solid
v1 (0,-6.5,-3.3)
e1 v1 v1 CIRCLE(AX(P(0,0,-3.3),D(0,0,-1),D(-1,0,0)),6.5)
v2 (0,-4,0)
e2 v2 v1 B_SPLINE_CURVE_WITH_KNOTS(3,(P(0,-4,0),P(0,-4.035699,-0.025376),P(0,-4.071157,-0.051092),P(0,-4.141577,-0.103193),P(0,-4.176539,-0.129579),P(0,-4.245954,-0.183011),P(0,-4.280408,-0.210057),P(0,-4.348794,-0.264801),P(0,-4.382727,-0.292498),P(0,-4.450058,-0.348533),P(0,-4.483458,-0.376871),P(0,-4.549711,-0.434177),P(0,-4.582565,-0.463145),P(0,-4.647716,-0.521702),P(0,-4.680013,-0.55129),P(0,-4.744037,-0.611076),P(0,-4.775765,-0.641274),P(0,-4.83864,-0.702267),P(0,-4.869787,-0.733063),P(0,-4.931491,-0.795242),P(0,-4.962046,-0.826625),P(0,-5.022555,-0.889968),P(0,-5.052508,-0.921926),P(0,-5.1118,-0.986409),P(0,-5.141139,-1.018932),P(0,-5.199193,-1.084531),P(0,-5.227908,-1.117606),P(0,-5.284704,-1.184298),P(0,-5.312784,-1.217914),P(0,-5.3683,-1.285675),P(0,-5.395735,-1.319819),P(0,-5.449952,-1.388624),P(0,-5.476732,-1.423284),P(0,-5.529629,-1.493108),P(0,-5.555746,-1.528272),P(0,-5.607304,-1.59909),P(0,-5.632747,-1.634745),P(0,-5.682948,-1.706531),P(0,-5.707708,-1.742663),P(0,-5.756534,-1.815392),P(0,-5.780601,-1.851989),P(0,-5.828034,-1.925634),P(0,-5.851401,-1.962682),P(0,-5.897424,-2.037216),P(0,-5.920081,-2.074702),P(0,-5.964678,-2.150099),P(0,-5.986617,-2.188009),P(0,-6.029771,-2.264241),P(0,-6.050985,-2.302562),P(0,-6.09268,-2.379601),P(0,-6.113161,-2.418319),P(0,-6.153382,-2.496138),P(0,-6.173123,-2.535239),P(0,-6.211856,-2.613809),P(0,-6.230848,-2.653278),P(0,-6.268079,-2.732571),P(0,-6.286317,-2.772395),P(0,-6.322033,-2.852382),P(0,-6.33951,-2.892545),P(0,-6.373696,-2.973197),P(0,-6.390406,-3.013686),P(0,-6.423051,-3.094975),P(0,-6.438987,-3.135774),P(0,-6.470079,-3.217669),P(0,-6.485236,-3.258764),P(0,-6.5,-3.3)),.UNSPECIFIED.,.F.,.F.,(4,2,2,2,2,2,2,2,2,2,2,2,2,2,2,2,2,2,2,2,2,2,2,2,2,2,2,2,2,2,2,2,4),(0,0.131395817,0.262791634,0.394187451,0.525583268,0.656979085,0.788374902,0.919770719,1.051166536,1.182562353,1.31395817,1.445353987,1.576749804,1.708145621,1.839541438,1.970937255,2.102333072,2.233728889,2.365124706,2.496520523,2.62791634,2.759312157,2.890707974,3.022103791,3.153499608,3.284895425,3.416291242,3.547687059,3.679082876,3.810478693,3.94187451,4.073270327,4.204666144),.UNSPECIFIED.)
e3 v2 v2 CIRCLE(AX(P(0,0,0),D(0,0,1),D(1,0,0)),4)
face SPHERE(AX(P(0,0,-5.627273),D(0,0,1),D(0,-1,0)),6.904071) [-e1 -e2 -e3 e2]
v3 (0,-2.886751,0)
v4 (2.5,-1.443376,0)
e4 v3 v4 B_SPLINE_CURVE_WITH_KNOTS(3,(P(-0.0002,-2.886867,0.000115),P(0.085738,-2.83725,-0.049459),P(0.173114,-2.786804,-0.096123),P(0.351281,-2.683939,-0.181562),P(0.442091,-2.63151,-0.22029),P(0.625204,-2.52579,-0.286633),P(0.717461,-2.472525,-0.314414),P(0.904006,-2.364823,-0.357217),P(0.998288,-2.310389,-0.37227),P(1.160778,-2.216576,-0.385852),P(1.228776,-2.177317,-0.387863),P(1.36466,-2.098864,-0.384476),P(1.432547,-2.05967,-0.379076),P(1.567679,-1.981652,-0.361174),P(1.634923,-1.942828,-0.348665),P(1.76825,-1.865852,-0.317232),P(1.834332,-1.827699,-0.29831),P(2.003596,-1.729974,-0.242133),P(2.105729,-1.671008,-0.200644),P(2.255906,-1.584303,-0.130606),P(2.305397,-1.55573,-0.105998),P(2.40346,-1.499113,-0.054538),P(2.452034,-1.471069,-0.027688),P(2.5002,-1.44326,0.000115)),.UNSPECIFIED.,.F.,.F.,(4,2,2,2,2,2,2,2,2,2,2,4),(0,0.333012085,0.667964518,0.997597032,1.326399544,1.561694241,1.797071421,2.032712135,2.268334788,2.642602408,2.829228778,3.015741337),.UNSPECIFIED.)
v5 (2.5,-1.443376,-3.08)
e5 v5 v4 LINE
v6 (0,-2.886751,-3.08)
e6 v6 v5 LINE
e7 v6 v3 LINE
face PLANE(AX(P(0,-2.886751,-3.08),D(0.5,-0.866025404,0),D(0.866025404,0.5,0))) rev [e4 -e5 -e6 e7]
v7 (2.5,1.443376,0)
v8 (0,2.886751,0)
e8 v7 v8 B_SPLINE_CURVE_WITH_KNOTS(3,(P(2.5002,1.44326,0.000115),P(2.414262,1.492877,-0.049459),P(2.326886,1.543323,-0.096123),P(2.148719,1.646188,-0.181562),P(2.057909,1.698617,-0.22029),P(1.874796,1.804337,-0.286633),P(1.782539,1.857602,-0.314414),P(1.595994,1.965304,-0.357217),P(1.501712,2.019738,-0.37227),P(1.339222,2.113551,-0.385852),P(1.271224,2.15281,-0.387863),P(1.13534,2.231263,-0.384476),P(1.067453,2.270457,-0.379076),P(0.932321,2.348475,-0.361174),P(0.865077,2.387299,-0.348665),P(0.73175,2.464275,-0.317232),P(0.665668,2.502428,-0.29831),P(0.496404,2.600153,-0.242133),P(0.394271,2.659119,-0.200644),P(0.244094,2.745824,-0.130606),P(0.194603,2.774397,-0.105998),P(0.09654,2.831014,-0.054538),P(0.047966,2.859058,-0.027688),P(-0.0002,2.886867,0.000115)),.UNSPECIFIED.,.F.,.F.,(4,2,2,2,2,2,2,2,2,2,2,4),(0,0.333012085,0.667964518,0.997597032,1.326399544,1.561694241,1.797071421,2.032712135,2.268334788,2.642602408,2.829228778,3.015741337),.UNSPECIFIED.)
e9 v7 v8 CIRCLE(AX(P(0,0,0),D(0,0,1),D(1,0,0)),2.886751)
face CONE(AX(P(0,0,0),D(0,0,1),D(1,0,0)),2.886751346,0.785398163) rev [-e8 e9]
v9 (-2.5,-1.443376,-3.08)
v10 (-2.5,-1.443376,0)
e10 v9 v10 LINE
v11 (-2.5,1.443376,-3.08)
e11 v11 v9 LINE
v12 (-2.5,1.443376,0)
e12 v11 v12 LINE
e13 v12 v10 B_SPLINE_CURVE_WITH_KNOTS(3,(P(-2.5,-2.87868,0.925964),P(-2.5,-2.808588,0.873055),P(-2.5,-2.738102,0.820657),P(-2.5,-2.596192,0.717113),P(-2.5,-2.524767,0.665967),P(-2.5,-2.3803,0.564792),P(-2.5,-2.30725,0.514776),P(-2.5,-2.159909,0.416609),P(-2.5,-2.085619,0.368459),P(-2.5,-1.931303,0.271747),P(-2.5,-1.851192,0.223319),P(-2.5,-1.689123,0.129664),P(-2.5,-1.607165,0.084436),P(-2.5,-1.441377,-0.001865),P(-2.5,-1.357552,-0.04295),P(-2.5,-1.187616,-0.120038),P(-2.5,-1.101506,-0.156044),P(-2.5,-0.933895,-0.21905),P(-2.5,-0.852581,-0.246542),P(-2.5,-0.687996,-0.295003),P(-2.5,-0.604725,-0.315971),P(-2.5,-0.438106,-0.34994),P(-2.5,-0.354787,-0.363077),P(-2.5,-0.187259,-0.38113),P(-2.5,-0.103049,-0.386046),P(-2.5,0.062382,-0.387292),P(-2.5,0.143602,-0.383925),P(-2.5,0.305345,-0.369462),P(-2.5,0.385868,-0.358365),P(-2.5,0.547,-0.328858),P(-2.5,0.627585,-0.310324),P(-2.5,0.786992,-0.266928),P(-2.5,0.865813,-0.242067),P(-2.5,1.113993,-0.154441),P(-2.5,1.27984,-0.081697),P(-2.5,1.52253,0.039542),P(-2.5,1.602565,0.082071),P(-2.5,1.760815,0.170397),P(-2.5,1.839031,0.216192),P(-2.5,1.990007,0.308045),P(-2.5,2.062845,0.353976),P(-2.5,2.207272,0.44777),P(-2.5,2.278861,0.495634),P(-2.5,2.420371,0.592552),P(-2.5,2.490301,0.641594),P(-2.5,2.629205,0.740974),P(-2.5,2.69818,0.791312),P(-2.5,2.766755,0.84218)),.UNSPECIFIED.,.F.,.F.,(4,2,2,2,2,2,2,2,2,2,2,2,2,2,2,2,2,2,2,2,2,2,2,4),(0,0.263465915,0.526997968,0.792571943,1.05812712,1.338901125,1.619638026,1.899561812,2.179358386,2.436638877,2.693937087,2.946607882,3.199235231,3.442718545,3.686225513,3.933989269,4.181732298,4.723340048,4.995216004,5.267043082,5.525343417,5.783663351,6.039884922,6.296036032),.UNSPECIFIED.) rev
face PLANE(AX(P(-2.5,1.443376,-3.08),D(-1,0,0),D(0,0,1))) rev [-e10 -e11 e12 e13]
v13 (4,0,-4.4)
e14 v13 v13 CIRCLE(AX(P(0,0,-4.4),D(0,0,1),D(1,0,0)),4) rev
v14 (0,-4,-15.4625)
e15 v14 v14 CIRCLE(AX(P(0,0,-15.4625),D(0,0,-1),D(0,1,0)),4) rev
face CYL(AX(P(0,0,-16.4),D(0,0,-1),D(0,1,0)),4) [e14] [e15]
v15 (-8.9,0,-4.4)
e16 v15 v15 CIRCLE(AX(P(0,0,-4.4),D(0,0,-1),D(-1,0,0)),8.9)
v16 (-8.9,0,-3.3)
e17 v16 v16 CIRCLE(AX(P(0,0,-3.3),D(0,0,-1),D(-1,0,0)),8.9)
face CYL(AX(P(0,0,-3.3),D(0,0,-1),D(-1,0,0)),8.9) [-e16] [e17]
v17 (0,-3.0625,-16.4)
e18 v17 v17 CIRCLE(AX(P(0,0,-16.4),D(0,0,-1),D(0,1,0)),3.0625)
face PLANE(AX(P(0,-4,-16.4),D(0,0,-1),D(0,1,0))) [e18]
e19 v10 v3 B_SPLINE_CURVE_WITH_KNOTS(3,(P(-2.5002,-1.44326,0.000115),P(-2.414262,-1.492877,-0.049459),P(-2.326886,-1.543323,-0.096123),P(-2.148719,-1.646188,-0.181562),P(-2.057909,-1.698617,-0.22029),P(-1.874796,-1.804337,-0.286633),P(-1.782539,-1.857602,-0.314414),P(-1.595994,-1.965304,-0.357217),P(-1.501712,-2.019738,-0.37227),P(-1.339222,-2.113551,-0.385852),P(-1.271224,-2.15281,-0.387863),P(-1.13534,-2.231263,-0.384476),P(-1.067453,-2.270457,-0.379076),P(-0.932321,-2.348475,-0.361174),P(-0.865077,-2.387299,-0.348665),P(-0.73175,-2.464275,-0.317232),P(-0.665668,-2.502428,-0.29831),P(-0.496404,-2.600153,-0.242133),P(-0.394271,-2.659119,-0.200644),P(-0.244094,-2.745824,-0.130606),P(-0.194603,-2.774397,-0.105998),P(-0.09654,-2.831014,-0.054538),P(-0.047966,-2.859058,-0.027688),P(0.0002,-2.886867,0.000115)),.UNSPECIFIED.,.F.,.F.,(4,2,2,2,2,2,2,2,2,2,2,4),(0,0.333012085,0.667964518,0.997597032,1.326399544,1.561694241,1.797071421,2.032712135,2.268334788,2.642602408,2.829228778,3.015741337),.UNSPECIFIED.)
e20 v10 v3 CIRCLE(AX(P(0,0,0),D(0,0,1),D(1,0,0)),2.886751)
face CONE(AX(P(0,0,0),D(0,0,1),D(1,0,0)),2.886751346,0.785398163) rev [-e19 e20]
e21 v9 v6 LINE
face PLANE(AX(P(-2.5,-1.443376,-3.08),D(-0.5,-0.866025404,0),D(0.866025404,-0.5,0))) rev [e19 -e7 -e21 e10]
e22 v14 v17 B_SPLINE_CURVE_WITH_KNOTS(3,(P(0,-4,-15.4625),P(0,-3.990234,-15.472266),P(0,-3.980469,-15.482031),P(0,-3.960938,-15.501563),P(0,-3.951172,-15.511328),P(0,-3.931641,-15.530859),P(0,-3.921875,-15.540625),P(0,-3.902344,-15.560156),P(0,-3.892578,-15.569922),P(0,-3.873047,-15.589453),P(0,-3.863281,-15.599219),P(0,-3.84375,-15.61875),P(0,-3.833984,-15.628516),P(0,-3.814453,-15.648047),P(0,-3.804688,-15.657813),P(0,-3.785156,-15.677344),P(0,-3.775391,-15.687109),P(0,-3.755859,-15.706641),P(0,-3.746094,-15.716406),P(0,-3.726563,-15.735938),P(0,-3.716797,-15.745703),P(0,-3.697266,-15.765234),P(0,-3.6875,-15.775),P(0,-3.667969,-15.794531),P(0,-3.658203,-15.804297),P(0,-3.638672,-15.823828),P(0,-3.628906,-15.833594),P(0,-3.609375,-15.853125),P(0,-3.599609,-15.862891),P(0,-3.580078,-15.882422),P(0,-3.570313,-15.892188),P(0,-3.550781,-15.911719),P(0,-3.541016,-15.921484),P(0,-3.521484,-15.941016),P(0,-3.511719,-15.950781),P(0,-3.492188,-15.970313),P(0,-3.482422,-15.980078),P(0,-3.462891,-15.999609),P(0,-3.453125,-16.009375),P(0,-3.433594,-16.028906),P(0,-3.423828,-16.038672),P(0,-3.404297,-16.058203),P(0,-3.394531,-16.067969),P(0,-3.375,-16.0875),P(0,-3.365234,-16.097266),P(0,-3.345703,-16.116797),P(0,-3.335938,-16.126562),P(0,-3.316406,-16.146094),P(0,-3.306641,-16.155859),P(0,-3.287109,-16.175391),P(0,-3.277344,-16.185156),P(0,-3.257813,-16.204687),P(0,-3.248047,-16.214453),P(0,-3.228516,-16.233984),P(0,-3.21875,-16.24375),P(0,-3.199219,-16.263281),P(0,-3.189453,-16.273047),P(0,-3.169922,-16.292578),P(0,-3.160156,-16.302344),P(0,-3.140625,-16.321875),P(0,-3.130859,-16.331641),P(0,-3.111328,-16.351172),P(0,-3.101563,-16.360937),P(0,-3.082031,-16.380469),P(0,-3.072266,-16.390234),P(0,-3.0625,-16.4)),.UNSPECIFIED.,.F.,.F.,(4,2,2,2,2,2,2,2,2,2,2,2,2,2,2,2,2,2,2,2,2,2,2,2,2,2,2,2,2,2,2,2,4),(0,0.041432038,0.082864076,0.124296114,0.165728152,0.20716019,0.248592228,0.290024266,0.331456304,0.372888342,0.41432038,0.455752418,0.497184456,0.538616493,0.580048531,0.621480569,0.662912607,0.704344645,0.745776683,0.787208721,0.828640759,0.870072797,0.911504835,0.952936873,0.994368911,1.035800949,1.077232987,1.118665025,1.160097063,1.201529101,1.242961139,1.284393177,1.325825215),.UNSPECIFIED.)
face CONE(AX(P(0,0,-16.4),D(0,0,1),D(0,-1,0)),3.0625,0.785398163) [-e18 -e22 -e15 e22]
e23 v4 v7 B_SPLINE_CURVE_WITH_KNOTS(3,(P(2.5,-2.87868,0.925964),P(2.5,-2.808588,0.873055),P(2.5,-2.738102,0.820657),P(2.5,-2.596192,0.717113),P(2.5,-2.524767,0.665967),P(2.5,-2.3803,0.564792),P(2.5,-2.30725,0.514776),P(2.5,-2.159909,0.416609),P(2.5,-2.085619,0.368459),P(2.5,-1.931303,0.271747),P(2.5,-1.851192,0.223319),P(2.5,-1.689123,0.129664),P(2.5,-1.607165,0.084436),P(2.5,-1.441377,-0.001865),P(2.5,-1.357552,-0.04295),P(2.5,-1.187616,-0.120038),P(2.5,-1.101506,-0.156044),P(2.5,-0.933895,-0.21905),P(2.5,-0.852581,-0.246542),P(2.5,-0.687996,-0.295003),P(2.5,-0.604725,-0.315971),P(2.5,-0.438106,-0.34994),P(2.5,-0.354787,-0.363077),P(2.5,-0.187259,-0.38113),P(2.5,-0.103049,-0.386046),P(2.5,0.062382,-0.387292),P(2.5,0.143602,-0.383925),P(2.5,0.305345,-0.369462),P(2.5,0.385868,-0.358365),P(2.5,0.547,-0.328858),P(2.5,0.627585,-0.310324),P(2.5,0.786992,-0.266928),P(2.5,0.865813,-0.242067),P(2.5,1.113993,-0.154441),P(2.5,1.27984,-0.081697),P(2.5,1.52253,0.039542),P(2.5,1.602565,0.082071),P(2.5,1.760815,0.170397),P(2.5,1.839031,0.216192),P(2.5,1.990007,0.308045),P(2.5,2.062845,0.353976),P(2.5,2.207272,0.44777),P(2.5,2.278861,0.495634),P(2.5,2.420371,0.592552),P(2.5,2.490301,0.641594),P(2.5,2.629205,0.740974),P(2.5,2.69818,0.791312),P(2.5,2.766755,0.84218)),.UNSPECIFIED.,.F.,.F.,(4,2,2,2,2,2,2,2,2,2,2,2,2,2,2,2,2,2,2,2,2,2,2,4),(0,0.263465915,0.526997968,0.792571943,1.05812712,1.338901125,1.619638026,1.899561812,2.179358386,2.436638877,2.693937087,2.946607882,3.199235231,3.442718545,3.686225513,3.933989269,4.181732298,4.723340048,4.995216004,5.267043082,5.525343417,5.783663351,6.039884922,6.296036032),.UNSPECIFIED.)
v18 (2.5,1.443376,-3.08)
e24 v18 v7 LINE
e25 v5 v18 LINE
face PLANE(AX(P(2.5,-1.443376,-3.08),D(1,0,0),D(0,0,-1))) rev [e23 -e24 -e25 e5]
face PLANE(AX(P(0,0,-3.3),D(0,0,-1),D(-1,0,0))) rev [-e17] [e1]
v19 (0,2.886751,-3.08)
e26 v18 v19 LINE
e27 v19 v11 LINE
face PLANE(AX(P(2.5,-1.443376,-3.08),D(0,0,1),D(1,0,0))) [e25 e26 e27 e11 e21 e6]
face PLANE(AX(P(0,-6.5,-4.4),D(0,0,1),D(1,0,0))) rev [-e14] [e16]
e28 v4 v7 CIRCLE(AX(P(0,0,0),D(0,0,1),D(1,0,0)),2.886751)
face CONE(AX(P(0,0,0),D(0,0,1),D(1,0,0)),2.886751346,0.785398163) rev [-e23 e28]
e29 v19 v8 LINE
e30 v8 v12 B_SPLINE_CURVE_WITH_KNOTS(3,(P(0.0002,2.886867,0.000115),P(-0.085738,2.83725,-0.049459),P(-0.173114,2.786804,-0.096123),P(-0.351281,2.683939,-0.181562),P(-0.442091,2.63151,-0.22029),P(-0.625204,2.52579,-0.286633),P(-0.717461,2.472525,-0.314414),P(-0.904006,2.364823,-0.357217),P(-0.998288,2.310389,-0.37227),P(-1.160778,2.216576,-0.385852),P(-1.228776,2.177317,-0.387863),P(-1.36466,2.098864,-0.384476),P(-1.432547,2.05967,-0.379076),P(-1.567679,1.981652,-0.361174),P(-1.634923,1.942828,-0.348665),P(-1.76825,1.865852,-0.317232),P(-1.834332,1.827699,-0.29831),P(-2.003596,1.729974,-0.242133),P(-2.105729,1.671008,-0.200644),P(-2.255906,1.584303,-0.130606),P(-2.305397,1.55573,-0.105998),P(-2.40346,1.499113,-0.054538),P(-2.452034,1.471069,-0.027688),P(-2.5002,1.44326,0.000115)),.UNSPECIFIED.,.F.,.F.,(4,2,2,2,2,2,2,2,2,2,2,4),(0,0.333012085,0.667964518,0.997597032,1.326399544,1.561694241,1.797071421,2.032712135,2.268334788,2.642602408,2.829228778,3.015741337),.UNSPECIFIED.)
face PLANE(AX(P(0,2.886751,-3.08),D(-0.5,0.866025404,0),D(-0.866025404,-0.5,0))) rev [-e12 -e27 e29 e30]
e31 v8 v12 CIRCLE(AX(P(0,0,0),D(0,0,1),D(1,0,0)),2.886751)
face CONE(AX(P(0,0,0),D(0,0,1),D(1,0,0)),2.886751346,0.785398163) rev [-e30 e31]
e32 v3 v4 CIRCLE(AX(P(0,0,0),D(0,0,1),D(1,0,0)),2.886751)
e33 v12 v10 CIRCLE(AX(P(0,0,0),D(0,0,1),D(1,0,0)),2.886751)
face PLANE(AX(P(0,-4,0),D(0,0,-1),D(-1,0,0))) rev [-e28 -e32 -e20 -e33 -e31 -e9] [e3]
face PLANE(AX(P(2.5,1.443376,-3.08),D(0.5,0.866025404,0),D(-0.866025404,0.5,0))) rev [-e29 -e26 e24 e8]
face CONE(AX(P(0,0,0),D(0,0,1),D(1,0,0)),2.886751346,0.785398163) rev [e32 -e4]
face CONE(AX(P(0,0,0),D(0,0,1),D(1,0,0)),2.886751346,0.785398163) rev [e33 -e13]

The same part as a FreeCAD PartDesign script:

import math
import FreeCAD as App
import Part
import Sketcher

V = App.Vector
Q = App.Units.Quantity


def edges_at(feature, points):
    """Names of the edges that pass closest to the given points."""
    edges = feature.Shape.Edges
    near = lambda p: min(range(len(edges)), key=lambda i: edges[i].distToShape(Part.Vertex(*p))[0])
    return sorted({f"Edge{near(p) + 1}" for p in points})

doc = App.newDocument("Part")
body = doc.addObject("PartDesign::Body", "Body")

# Sketch on YZ plane
sketch1 = body.newObject("Sketcher::SketchObject", "Sketch")
sketch1.AttachmentSupport = (doc.getObject("YZ_Plane"), [""])
sketch1.MapMode = "FlatFace"
sketch1.addGeometry([
    Part.LineSegment(V(4, -4.4, 0), V(0, -4.4, 0)),
    Part.LineSegment(V(0, -4.4, 0), V(0, -16.4, 0)),
    Part.LineSegment(V(0, -16.4, 0), V(4, -16.4, 0)),
    Part.LineSegment(V(4, -16.4, 0), V(4, -4.4, 0)),
], False)
sketch1.addConstraint([
    Sketcher.Constraint("Coincident", 0, 2, 1, 1),
    Sketcher.Constraint("Coincident", 1, 2, 2, 1),
    Sketcher.Constraint("Coincident", 2, 2, 3, 1),
    Sketcher.Constraint("Coincident", 3, 2, 0, 1),
    Sketcher.Constraint("Horizontal", 0),
    Sketcher.Constraint("Vertical", 1),
    Sketcher.Constraint("Horizontal", 2),
    Sketcher.Constraint("Vertical", 3),
    Sketcher.Constraint("PointOnObject", 0, 2, -2),
    Sketcher.Constraint("DistanceX", 0, 2, 0, 1, Q("4 mm")),
    Sketcher.Constraint("DistanceY", 1, 2, 1, 1, Q("12 mm")),
    Sketcher.Constraint("DistanceY", 0, 2, -1, 1, Q("4.4 mm")),
])
revolution = body.newObject("PartDesign::Revolution", "Revolution")
revolution.Profile = sketch1
revolution.ReferenceAxis = (sketch1, ["V_Axis"])
revolution.Angle = 360
doc.recompute()

chamfer = body.newObject("PartDesign::Chamfer", "Chamfer")
chamfer.Base = (revolution, edges_at(revolution, [(0, -4, -16.4)]))
chamfer.Size = 0.9375

# Sketch on YZ plane
sketch2 = body.newObject("Sketcher::SketchObject", "Sketch001")
sketch2.AttachmentSupport = (doc.getObject("YZ_Plane"), [""])
sketch2.MapMode = "FlatFace"
sketch2.addGeometry([
    Part.LineSegment(V(6.5, -4.4, 0), V(6.5, -3.3, 0)),  # 0
    Part.ArcOfCircle(Part.Circle(V(0, -5.6, 0), V(0, 0, 1), 6.9), math.radians(20), math.radians(55)),  # 1
    Part.LineSegment(V(4, 0, 0), V(0, 0, 0)),  # 2
    Part.LineSegment(V(0, 0, 0), V(0, -4.4, 0)),  # 3
    Part.LineSegment(V(0, -4.4, 0), V(6.5, -4.4, 0)),  # 4
], False)
sketch2.addConstraint([
    Sketcher.Constraint("Coincident", 0, 2, 1, 1),
    Sketcher.Constraint("Coincident", 1, 2, 2, 1),
    Sketcher.Constraint("Coincident", 2, 2, 3, 1),
    Sketcher.Constraint("Coincident", 3, 2, 4, 1),
    Sketcher.Constraint("Coincident", 4, 2, 0, 1),
    Sketcher.Constraint("Vertical", 0),
    Sketcher.Constraint("Horizontal", 2),
    Sketcher.Constraint("Vertical", 3),
    Sketcher.Constraint("Horizontal", 4),
    Sketcher.Constraint("Coincident", 2, 2, -1, 1),
    Sketcher.Constraint("PointOnObject", 1, 3, -2),
    Sketcher.Constraint("DistanceX", 2, 2, 2, 1, Q("4 mm")),
    Sketcher.Constraint("DistanceX", 4, 1, 4, 2, Q("6.5 mm")),
    Sketcher.Constraint("DistanceY", 0, 1, 0, 2, Q("1.1 mm")),
    Sketcher.Constraint("DistanceY", 3, 2, 3, 1, Q("4.4 mm")),
])
revolution2 = body.newObject("PartDesign::Revolution", "Revolution001")
revolution2.Profile = sketch2
revolution2.ReferenceAxis = (sketch2, ["V_Axis"])
revolution2.Angle = 360

# Sketch on XY plane
sketch3 = body.newObject("Sketcher::SketchObject", "Sketch002")
sketch3.AttachmentSupport = (doc.getObject("XY_Plane"), [""])
sketch3.MapMode = "FlatFace"
sketch3.AttachmentOffset = App.Placement(V(0, 0, -4.4), App.Rotation())
sketch3.addGeometry(Part.Circle(V(0, 0, 0), V(0, 0, 1), 9), False)
sketch3.addConstraint([
    Sketcher.Constraint("Coincident", 0, 3, -1, 1),
    Sketcher.Constraint("Diameter", 0, Q("17.8 mm")),
])
pad1 = body.newObject("PartDesign::Pad", "Pad")
pad1.Profile = sketch3
pad1.Length = 1.1

# Sketch on XY plane
sketch4 = body.newObject("Sketcher::SketchObject", "Sketch003")
sketch4.AttachmentSupport = (doc.getObject("XY_Plane"), [""])
sketch4.MapMode = "FlatFace"
sketch4.addGeometry([
    Part.LineSegment(V(2.5, -1.4, 0), V(2.5, 1.4, 0)),  # 0
    Part.LineSegment(V(2.5, 1.4, 0), V(0, 2.9, 0)),  # 1
    Part.LineSegment(V(0, 2.9, 0), V(-2.5, 1.4, 0)),  # 2
    Part.LineSegment(V(-2.5, 1.4, 0), V(-2.5, -1.4, 0)),  # 3
    Part.LineSegment(V(-2.5, -1.4, 0), V(0, -2.9, 0)),  # 4
    Part.LineSegment(V(0, -2.9, 0), V(2.5, -1.4, 0)),  # 5
], False)
sketch4.addConstraint([
    Sketcher.Constraint("Coincident", 0, 2, 1, 1),
    Sketcher.Constraint("Coincident", 1, 2, 2, 1),
    Sketcher.Constraint("Coincident", 2, 2, 3, 1),
    Sketcher.Constraint("Coincident", 3, 2, 4, 1),
    Sketcher.Constraint("Coincident", 4, 2, 5, 1),
    Sketcher.Constraint("Coincident", 5, 2, 0, 1),
    Sketcher.Constraint("Vertical", 0),
    Sketcher.Constraint("Vertical", 3),
    Sketcher.Constraint("Symmetric", 0, 2, 3, 2, -1, 1),
    Sketcher.Constraint("Symmetric", 1, 2, 4, 2, -1, 1),
    Sketcher.Constraint("PointOnObject", 1, 2, -2),
    Sketcher.Constraint("Parallel", 2, 5),
    Sketcher.Constraint("Horizontal", 0, 2, 2, 2),
    Sketcher.Constraint("Angle", 1, Q("150 deg")),
    Sketcher.Constraint("DistanceX", 2, 2, 0, 2, Q("5 mm")),
    Sketcher.Constraint("DistanceY", 0, 1, 0, 2, Q("2.886751 mm")),
])
pocket1 = body.newObject("PartDesign::Pocket", "Pocket")
pocket1.Profile = sketch4
pocket1.Length = 3.08

# Sketch on YZ plane
sketch5 = body.newObject("Sketcher::SketchObject", "Sketch004")
sketch5.AttachmentSupport = (doc.getObject("YZ_Plane"), [""])
sketch5.MapMode = "FlatFace"
sketch5.addGeometry([
    Part.LineSegment(V(0, 0, 0), V(-2.9, 0, 0)),
    Part.LineSegment(V(-2.9, 0, 0), V(0, -2.9, 0)),
    Part.LineSegment(V(0, -2.9, 0), V(0, 0, 0)),
], False)
sketch5.addConstraint([
    Sketcher.Constraint("Coincident", 0, 2, 1, 1),
    Sketcher.Constraint("Coincident", 1, 2, 2, 1),
    Sketcher.Constraint("Coincident", 2, 2, 0, 1),
    Sketcher.Constraint("Horizontal", 0),
    Sketcher.Constraint("Vertical", 2),
    Sketcher.Constraint("Coincident", 2, 2, -1, 1),
    Sketcher.Constraint("Equal", 0, 2),
    Sketcher.Constraint("DistanceX", 0, 2, 0, 1, Q("2.886751 mm")),
])
groove = body.newObject("PartDesign::Groove", "Groove")
groove.Profile = sketch5
groove.ReferenceAxis = (sketch5, ["V_Axis"])
groove.Angle = 360

doc.recompute()
